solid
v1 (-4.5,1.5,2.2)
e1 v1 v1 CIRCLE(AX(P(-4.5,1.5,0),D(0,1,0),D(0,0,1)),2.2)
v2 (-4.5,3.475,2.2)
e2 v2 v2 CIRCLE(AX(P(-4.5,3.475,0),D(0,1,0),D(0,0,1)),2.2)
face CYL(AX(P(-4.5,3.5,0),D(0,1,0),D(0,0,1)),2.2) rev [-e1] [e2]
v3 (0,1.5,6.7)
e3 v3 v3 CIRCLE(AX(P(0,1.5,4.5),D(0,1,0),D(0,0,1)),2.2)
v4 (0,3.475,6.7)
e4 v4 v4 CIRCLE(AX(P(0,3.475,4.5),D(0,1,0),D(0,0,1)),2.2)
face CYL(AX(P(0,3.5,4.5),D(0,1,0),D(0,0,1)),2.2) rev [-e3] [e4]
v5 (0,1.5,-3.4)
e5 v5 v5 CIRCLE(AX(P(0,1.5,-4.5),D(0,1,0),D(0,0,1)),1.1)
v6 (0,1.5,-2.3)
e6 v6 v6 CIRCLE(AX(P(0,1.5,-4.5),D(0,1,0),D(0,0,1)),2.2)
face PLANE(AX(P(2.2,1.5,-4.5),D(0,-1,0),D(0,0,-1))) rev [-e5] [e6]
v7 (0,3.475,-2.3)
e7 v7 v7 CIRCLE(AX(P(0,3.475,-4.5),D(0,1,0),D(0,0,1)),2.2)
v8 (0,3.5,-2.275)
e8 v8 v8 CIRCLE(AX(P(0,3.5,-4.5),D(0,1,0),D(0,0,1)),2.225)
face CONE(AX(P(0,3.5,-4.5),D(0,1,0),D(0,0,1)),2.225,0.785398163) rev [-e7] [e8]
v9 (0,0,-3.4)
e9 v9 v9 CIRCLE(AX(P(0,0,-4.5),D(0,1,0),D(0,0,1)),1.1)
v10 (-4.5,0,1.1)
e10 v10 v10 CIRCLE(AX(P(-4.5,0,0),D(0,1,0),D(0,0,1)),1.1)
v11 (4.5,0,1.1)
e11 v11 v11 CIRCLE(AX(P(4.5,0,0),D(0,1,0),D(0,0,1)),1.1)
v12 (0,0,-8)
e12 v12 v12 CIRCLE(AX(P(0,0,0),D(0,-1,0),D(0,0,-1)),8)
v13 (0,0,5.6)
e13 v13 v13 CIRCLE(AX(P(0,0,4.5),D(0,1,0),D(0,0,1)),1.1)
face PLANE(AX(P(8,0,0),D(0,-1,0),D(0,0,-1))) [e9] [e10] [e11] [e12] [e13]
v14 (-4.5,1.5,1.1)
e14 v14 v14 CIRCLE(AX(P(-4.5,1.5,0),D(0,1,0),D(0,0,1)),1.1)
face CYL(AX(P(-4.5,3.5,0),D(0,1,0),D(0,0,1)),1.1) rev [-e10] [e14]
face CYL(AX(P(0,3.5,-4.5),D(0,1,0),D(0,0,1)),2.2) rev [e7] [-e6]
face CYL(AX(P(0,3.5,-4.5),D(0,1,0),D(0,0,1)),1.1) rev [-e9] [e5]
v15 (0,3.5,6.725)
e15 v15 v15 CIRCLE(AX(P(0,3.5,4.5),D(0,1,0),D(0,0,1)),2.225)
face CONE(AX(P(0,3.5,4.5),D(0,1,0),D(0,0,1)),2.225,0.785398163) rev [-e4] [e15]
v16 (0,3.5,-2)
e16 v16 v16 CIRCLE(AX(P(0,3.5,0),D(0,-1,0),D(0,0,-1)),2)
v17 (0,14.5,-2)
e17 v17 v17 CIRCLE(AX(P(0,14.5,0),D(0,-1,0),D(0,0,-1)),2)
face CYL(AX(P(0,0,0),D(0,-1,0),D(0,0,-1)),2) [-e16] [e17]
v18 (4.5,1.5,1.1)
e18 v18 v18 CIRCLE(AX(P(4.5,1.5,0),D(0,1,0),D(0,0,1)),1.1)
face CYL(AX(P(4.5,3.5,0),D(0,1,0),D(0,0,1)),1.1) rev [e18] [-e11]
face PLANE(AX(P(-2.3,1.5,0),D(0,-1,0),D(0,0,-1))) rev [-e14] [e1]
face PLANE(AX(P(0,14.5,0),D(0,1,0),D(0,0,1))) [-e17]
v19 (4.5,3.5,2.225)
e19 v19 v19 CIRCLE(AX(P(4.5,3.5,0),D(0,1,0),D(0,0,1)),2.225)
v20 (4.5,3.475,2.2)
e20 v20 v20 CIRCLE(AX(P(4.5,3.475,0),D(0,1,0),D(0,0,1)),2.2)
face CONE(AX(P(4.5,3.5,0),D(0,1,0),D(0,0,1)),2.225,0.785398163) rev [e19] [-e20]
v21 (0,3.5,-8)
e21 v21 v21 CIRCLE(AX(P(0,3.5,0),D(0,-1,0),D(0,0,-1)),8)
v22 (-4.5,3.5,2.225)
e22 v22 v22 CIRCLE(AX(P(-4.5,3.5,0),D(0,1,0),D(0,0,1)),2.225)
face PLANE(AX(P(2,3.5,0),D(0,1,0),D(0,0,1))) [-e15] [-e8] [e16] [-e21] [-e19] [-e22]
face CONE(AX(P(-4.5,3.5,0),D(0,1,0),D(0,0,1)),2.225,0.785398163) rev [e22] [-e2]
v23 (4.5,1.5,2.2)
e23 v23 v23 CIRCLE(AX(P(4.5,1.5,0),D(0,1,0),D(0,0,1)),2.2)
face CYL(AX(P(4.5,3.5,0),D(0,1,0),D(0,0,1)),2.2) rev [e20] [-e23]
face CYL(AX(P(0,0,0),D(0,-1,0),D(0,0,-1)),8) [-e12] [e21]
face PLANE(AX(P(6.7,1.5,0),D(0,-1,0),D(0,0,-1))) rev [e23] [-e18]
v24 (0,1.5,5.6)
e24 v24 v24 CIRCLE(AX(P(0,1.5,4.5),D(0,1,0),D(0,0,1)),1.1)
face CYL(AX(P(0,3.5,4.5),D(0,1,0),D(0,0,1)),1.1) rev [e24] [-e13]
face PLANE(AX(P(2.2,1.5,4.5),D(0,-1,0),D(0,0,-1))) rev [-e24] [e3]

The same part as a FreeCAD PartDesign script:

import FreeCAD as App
import Part
import Sketcher

V = App.Vector
Q = App.Units.Quantity

doc = App.newDocument("Part")
body = doc.addObject("PartDesign::Body", "Body")

sketch1 = body.newObject("Sketcher::SketchObject", "Sketch")
sketch1.AttachmentSupport = (doc.getObject("XY_Plane"), [""])
sketch1.MapMode = "FlatFace"
sketch1.addGeometry(Part.LineSegment(V(0, 14.5, 0), V(0, 0, 0)), False)
sketch1.addGeometry(Part.LineSegment(V(0, 0, 0), V(8, 0, 0)), False)
sketch1.addGeometry(Part.LineSegment(V(8, 0, 0), V(8, 3.5, 0)), False)
sketch1.addGeometry(Part.LineSegment(V(8, 3.5, 0), V(2, 3.5, 0)), False)
sketch1.addGeometry(Part.LineSegment(V(2, 3.5, 0), V(2, 14.5, 0)), False)
sketch1.addGeometry(Part.LineSegment(V(2, 14.5, 0), V(0, 14.5, 0)), False)
sketch1.addConstraint(Sketcher.Constraint("Coincident", 0, 2, 1, 1))
sketch1.addConstraint(Sketcher.Constraint("Coincident", 1, 2, 2, 1))
sketch1.addConstraint(Sketcher.Constraint("Coincident", 2, 2, 3, 1))
sketch1.addConstraint(Sketcher.Constraint("Coincident", 3, 2, 4, 1))
sketch1.addConstraint(Sketcher.Constraint("Coincident", 4, 2, 5, 1))
sketch1.addConstraint(Sketcher.Constraint("Coincident", 5, 2, 0, 1))
sketch1.addConstraint(Sketcher.Constraint("Vertical", 0))
sketch1.addConstraint(Sketcher.Constraint("Horizontal", 1))
sketch1.addConstraint(Sketcher.Constraint("Vertical", 2))
sketch1.addConstraint(Sketcher.Constraint("Horizontal", 3))
sketch1.addConstraint(Sketcher.Constraint("Vertical", 4))
sketch1.addConstraint(Sketcher.Constraint("Horizontal", 5))
sketch1.addConstraint(Sketcher.Constraint("Coincident", 0, 2, -1, 1))
sketch1.addConstraint(Sketcher.Constraint("DistanceX", 1, 1, 1, 2, Q("8 mm")))
sketch1.addConstraint(Sketcher.Constraint("DistanceX", 3, 2, 3, 1, Q("6 mm")))
sketch1.addConstraint(Sketcher.Constraint("DistanceY", 4, 1, 4, 2, Q("11 mm")))
sketch1.addConstraint(Sketcher.Constraint("DistanceY", 0, 2, 0, 1, Q("14.5 mm")))
revolution = body.newObject("PartDesign::Revolution", "Revolution")
revolution.Profile = sketch1
revolution.ReferenceAxis = (sketch1, ["V_Axis"])
revolution.Angle = 360

sketch2 = body.newObject("Sketcher::SketchObject", "Sketch001")
sketch2.AttachmentSupport = (doc.getObject("YZ_Plane"), [""])
sketch2.MapMode = "FlatFace"
sketch2.addGeometry(Part.LineSegment(V(0, -4.5, 0), V(3.5, -4.5, 0)), False)
sketch2.addGeometry(Part.LineSegment(V(3.5, -4.5, 0), V(3.5, -2.275, 0)), False)
sketch2.addGeometry(Part.LineSegment(V(3.5, -2.275, 0), V(3.475, -2.3, 0)), False)
sketch2.addGeometry(Part.LineSegment(V(3.475, -2.3, 0), V(1.5, -2.3, 0)), False)
sketch2.addGeometry(Part.LineSegment(V(1.5, -2.3, 0), V(1.5, -3.4, 0)), False)
sketch2.addGeometry(Part.LineSegment(V(1.5, -3.4, 0), V(0, -3.4, 0)), False)
sketch2.addGeometry(Part.LineSegment(V(0, -3.4, 0), V(0, -4.5, 0)), False)
sketch2.addGeometry(Part.LineSegment(V(3.5, -4.5, 0), V(0, -4.5, 0)), True)
sketch2.addConstraint(Sketcher.Constraint("Coincident", 0, 2, 1, 1))
sketch2.addConstraint(Sketcher.Constraint("Coincident", 1, 2, 2, 1))
sketch2.addConstraint(Sketcher.Constraint("Coincident", 2, 2, 3, 1))
sketch2.addConstraint(Sketcher.Constraint("Coincident", 3, 2, 4, 1))
sketch2.addConstraint(Sketcher.Constraint("Coincident", 4, 2, 5, 1))
sketch2.addConstraint(Sketcher.Constraint("Coincident", 5, 2, 6, 1))
sketch2.addConstraint(Sketcher.Constraint("Coincident", 6, 2, 0, 1))
sketch2.addConstraint(Sketcher.Constraint("Horizontal", 0))
sketch2.addConstraint(Sketcher.Constraint("Vertical", 1))
sketch2.addConstraint(Sketcher.Constraint("Horizontal", 3))
sketch2.addConstraint(Sketcher.Constraint("Vertical", 4))
sketch2.addConstraint(Sketcher.Constraint("Horizontal", 5))
sketch2.addConstraint(Sketcher.Constraint("Vertical", 6))
sketch2.addConstraint(Sketcher.Constraint("Horizontal", 7))
sketch2.addConstraint(Sketcher.Constraint("Coincident", 7, 1, 0, 2))
sketch2.addConstraint(Sketcher.Constraint("PointOnObject", 5, 2, -2))
sketch2.addConstraint(Sketcher.Constraint("PointOnObject", 7, 2, -2))
sketch2.addConstraint(Sketcher.Constraint("Equal", 4, 6))
sketch2.addConstraint(Sketcher.Constraint("Angle", 2, Q("-135 deg")))
sketch2.addConstraint(Sketcher.Constraint("DistanceX", 0, 1, 0, 2, Q("3.5 mm")))
sketch2.addConstraint(Sketcher.Constraint("DistanceX", 5, 2, 5, 1, Q("1.5 mm")))
sketch2.addConstraint(Sketcher.Constraint("DistanceY", 4, 2, 4, 1, Q("1.1 mm")))
sketch2.addConstraint(Sketcher.Constraint("DistanceY", 0, 2, -1, 1, Q("4.5 mm")))
sketch2.addConstraint(Sketcher.Constraint("DistanceX", 3, 2, 3, 1, Q("1.975 mm")))
groove = body.newObject("PartDesign::Groove", "Groove")
groove.Profile = sketch2
groove.ReferenceAxis = (sketch2, ["Axis0"])
groove.Angle = 360
doc.recompute()

datumline = body.newObject("PartDesign::Line", "DatumLine")
datumline.Placement = App.Placement(V(0, 0, 0), App.Rotation(V(0, 0, 1), V(0.707106781, 0, 0.707106781)))
linearpattern = body.newObject("PartDesign::LinearPattern", "LinearPattern")
linearpattern.Originals = [groove]
linearpattern.Direction = (datumline, [""])
linearpattern.Mode = "offset"
linearpattern.Offset = 6.363961
linearpattern.Occurrences = 2
body.Tip = linearpattern
doc.recompute()

linearpattern2 = body.newObject("PartDesign::LinearPattern", "LinearPattern001")
linearpattern2.Originals = [groove]
linearpattern2.Direction = (doc.getObject("Z_Axis"), [""])
linearpattern2.Mode = "offset"
linearpattern2.Offset = 9
linearpattern2.Occurrences = 2
body.Tip = linearpattern2
doc.recompute()

datumline2 = body.newObject("PartDesign::Line", "DatumLine001")
datumline2.Placement = App.Placement(V(0, 0, 0), App.Rotation(V(0, 0, 1), V(-0.707106781, 0, 0.707106781)))
linearpattern3 = body.newObject("PartDesign::LinearPattern", "LinearPattern002")
linearpattern3.Originals = [groove]
linearpattern3.Direction = (datumline2, [""])
linearpattern3.Mode = "offset"
linearpattern3.Offset = 6.363961
linearpattern3.Occurrences = 2
body.Tip = linearpattern3

doc.recompute()
